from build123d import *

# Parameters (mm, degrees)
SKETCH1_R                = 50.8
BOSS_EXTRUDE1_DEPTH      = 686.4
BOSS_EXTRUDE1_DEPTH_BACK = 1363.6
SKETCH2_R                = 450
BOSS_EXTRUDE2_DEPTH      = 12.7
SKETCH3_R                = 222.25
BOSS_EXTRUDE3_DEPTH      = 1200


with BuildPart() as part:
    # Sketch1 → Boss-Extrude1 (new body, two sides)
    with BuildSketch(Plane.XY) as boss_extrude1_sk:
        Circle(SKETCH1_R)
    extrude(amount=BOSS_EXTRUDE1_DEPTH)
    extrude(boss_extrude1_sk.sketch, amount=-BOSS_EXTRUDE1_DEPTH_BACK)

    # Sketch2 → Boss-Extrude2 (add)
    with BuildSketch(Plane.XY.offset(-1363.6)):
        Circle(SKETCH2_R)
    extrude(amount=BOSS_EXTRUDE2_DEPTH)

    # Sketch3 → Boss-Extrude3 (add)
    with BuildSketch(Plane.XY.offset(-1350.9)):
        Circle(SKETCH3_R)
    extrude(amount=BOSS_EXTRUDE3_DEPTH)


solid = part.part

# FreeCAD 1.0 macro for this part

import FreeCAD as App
import Part
import Sketcher
from FreeCAD import Vector

doc = App.newDocument("Part")
body = doc.addObject("PartDesign::Body", "Body")

sketch1 = body.newObject("Sketcher::SketchObject", "Sketch")
sketch1.AttachmentSupport = (doc.getObject("XY_Plane"), [""])
sketch1.MapMode = "FlatFace"
sketch1.addGeometry(Part.Circle(Vector(0, 0, 0), Vector(0, 0, 1), 51), False)
sketch1.addConstraint([
    Sketcher.Constraint("Coincident", 0, 3, -1, 1),
    Sketcher.Constraint("Diameter", 0, 101.6),
])
pad1 = body.newObject("PartDesign::Pad", "Pad")
pad1.Profile = sketch1
pad1.Type = "TwoLengths"
pad1.Length = 686.4
pad1.Length2 = 1363.6

sketch2 = body.newObject("Sketcher::SketchObject", "Sketch001")
sketch2.AttachmentSupport = (doc.getObject("XY_Plane"), [""])
sketch2.MapMode = "FlatFace"
sketch2.AttachmentOffset = App.Placement(Vector(0, 0, -1363.6), App.Rotation())
sketch2.addGeometry(Part.Circle(Vector(0, 0, 0), Vector(0, 0, 1), 450), False)
sketch2.addConstraint([
    Sketcher.Constraint("Coincident", 0, 3, -1, 1),
    Sketcher.Constraint("Diameter", 0, 900.0),
])
pad2 = body.newObject("PartDesign::Pad", "Pad001")
pad2.Profile = sketch2
pad2.Length = 12.7

sketch3 = body.newObject("Sketcher::SketchObject", "Sketch002")
sketch3.AttachmentSupport = (doc.getObject("XY_Plane"), [""])
sketch3.MapMode = "FlatFace"
sketch3.AttachmentOffset = App.Placement(Vector(0, 0, -1350.9), App.Rotation())
sketch3.addGeometry(Part.Circle(Vector(0, 0, 0), Vector(0, 0, 1), 222), False)
sketch3.addConstraint([
    Sketcher.Constraint("Coincident", 0, 3, -1, 1),
    Sketcher.Constraint("Diameter", 0, 444.5),
])
pad3 = body.newObject("PartDesign::Pad", "Pad002")
pad3.Profile = sketch3
pad3.Length = 1200

doc.recompute()
